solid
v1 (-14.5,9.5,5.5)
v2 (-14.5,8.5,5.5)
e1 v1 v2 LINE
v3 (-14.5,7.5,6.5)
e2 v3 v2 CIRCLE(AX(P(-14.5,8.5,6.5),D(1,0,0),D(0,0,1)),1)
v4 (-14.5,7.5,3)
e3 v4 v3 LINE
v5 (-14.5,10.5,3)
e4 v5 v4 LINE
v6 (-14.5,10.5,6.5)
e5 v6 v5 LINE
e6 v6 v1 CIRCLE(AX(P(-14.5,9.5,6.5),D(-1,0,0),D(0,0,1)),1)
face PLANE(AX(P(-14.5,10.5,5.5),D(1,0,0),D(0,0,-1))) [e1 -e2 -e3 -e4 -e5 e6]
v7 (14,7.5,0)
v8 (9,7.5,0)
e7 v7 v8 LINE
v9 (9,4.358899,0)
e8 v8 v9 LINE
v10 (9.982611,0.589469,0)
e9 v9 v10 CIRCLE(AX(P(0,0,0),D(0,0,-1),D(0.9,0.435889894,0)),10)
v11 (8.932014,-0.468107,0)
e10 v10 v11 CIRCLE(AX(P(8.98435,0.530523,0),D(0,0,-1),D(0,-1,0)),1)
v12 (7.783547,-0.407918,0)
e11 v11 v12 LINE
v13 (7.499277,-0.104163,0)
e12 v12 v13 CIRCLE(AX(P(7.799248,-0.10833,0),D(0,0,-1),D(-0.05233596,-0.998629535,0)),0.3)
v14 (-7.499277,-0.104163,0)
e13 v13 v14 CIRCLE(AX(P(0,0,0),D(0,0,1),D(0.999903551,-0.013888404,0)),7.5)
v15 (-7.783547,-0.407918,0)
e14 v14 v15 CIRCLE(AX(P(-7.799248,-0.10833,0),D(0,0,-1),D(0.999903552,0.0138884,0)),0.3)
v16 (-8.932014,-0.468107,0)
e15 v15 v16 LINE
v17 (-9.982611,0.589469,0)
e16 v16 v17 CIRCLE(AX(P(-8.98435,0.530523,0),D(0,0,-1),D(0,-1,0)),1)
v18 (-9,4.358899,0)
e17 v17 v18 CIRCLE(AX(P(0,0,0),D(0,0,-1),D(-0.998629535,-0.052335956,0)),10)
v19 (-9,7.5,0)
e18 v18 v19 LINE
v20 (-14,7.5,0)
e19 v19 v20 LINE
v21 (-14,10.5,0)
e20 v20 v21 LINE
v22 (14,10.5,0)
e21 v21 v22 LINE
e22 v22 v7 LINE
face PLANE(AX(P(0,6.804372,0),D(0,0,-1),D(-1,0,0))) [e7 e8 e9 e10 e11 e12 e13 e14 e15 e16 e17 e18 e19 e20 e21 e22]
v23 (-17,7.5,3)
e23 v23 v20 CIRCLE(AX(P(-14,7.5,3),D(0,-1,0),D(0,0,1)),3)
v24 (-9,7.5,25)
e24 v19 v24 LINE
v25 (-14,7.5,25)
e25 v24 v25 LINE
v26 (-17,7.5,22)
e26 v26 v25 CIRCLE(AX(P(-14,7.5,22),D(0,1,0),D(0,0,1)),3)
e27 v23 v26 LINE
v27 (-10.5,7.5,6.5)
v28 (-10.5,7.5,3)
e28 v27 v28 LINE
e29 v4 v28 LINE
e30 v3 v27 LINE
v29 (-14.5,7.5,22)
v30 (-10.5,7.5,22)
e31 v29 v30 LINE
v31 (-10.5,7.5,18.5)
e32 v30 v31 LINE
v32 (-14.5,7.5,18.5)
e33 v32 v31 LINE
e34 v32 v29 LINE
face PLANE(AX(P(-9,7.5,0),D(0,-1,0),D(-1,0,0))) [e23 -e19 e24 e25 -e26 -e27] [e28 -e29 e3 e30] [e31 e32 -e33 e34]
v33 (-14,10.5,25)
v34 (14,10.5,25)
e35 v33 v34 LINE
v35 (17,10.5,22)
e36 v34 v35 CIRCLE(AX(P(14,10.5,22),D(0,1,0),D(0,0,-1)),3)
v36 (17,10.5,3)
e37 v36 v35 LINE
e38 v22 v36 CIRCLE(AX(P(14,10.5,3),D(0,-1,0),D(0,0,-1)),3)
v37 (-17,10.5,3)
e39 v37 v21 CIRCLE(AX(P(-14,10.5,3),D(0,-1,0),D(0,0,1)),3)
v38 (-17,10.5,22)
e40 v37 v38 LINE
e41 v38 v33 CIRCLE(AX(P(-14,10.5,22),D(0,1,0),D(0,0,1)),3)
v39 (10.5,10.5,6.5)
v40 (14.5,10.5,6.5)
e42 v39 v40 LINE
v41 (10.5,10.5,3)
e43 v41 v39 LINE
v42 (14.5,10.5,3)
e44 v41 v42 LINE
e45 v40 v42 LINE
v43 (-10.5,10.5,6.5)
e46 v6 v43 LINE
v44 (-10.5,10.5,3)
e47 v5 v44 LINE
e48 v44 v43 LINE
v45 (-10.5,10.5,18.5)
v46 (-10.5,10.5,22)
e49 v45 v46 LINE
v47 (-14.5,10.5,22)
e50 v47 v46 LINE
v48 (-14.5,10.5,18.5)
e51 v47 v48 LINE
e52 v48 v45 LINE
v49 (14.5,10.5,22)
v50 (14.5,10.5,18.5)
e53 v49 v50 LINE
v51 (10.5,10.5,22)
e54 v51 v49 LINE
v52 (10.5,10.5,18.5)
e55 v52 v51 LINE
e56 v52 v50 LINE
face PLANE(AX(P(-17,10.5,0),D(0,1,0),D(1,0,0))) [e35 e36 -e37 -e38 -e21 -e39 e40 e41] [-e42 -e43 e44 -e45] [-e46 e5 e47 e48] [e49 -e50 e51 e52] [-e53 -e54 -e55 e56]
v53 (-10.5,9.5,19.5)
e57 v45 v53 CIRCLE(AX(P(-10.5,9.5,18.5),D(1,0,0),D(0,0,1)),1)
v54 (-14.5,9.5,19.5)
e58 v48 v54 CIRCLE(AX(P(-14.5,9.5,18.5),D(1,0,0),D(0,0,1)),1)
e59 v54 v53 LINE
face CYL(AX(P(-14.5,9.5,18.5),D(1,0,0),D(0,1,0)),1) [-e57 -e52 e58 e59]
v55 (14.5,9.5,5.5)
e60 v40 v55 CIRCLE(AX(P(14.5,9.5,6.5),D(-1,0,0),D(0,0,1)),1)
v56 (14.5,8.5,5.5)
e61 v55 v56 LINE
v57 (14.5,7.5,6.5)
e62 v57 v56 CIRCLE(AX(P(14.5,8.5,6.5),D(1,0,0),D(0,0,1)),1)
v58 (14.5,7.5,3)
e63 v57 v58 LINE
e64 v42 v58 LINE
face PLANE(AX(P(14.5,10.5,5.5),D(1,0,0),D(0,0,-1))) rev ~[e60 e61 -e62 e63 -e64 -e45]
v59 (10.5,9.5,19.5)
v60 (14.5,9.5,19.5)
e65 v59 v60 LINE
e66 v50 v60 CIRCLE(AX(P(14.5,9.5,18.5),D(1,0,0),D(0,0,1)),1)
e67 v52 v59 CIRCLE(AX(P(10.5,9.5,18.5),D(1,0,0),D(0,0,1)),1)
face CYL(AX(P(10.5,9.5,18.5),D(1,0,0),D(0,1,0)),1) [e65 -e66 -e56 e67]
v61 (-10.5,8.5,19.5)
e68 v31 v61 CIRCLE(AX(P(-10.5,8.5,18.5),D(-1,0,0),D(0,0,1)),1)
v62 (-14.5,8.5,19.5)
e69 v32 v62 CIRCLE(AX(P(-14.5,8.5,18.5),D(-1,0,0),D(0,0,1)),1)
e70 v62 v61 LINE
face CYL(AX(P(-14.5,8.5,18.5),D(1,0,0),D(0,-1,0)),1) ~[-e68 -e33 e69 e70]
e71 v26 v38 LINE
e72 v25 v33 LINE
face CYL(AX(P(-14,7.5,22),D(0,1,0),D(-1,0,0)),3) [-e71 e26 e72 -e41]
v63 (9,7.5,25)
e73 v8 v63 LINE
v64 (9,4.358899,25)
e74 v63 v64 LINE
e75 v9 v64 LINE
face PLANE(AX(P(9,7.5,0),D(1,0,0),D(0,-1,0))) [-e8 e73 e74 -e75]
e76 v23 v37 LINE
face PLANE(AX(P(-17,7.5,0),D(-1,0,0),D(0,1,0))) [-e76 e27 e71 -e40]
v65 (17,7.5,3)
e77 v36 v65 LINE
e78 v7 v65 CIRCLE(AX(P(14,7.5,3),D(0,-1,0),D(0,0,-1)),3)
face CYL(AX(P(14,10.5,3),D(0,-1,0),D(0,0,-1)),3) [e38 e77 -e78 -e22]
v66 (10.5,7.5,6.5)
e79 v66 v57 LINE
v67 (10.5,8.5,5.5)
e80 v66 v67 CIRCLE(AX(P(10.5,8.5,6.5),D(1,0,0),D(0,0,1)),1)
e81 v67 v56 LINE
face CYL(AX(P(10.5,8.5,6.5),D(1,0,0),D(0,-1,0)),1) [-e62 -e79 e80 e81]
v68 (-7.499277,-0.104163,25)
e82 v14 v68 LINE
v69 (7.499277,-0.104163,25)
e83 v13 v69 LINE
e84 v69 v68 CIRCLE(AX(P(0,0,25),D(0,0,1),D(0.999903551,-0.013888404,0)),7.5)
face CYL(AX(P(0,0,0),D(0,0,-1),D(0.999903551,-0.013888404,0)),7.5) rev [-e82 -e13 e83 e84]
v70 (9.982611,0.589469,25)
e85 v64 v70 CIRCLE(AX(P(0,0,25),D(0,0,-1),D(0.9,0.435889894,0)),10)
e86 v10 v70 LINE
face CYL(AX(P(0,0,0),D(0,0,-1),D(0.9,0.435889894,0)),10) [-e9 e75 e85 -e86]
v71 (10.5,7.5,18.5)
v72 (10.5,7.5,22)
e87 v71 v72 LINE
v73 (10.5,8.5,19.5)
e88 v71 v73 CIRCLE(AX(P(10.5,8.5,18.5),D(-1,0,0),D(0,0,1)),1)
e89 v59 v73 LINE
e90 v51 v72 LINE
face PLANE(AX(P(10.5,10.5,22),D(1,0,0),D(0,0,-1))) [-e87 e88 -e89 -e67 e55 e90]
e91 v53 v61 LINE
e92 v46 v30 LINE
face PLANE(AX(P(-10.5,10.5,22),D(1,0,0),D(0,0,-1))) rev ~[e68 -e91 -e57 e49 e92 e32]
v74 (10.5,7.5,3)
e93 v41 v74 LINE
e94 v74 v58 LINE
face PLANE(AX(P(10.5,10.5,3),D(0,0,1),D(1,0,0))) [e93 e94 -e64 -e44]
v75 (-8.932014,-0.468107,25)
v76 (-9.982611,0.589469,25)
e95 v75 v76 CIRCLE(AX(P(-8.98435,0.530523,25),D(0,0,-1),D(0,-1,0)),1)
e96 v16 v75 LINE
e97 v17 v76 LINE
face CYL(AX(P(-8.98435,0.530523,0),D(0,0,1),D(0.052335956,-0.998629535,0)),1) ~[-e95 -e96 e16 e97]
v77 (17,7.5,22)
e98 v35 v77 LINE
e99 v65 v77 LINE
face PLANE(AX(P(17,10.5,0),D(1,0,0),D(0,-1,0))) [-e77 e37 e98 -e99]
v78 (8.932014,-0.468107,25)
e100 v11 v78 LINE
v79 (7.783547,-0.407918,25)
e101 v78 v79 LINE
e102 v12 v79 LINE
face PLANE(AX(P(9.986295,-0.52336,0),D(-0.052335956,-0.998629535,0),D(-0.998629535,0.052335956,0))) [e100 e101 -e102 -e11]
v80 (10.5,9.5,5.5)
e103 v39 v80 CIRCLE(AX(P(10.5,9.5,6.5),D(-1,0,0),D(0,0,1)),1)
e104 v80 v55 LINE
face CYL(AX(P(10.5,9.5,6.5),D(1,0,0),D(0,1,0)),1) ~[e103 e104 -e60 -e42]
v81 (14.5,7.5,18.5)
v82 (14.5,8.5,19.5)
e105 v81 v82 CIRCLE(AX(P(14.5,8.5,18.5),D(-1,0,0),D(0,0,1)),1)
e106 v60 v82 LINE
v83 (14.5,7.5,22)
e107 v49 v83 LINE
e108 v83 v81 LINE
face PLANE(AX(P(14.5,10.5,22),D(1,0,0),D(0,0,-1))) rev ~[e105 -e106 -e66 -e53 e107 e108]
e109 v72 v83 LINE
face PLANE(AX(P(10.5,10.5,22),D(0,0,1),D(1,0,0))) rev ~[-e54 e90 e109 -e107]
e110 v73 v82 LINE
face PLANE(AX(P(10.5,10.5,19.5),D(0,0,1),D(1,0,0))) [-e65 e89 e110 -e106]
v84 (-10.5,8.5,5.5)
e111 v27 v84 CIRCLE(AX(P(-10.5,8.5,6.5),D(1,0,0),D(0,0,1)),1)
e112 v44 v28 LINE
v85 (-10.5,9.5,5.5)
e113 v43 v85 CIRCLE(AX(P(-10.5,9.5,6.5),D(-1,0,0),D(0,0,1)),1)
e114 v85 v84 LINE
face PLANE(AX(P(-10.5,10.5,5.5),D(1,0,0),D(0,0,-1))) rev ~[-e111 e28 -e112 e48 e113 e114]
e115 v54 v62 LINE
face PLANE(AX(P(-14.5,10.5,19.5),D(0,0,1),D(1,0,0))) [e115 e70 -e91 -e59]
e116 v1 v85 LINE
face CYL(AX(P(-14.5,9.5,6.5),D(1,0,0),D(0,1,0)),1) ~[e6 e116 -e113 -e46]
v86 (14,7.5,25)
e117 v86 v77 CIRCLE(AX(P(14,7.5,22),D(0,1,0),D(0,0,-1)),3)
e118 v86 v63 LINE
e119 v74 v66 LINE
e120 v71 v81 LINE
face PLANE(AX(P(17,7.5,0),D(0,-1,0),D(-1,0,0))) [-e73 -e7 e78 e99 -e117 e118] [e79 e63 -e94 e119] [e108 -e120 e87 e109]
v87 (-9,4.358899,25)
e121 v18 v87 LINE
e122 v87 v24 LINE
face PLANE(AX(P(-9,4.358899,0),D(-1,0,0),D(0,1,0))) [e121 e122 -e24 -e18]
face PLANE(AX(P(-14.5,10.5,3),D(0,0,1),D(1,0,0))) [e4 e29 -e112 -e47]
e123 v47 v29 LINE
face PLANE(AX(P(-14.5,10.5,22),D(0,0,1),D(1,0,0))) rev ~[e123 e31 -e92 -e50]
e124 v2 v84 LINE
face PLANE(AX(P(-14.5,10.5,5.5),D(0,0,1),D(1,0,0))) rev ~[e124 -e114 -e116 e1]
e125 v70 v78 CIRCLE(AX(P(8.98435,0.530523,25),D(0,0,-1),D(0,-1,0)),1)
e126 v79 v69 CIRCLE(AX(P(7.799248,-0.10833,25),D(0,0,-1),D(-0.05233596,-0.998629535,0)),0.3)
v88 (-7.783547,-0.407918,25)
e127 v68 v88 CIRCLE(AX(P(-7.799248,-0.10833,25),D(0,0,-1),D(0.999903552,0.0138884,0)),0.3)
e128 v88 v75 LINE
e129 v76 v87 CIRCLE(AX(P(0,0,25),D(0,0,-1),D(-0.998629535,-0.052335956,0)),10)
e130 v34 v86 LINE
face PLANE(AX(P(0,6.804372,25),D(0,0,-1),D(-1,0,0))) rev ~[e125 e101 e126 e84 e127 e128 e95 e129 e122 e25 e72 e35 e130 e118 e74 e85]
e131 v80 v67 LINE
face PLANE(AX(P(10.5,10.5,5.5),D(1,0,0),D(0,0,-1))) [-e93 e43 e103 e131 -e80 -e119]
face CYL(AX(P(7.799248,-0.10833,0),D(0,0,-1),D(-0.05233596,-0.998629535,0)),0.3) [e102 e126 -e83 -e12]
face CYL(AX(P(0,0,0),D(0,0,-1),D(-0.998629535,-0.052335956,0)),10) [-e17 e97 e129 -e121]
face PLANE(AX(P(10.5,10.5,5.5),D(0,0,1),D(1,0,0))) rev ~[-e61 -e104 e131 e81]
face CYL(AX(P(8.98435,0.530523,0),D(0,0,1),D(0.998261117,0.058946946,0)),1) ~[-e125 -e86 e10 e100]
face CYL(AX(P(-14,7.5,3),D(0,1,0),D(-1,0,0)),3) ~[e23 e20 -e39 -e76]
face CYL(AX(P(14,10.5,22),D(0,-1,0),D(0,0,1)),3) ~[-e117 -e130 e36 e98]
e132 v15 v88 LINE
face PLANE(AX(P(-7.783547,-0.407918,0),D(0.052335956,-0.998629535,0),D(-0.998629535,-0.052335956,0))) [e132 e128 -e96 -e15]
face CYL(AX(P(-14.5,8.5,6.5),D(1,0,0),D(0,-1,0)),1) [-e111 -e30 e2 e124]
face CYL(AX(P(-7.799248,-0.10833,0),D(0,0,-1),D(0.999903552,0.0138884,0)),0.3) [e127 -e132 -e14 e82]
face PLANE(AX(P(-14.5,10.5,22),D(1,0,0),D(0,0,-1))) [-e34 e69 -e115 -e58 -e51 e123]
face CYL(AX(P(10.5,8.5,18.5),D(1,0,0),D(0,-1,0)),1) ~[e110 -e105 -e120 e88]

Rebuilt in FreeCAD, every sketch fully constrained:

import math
import FreeCAD as App
import Part
import Sketcher

V = App.Vector
Q = App.Units.Quantity


def edges_at(feature, points):
    """Names of the edges that pass closest to the given points."""
    edges = feature.Shape.Edges
    near = lambda p: min(range(len(edges)), key=lambda i: edges[i].distToShape(Part.Vertex(*p))[0])
    return sorted({f"Edge{near(p) + 1}" for p in points})


def add_polygon(sketch, points):
    """Adds a closed chain of lines whose ends are joined by coincident constraints."""
    first, n = sketch.GeometryCount, len(points)
    for a, b in zip(points, points[1:] + points[:1]):
        sketch.addGeometry(Part.LineSegment(App.Vector(*a, 0), App.Vector(*b, 0)), False)
    for i in range(n):
        sketch.addConstraint(Sketcher.Constraint("Coincident", first + i, 2, first + (i + 1) % n, 1))

doc = App.newDocument("Part")
body = doc.addObject("PartDesign::Body", "Body")

sketch1 = body.newObject("Sketcher::SketchObject", "Sketch")
sketch1.AttachmentSupport = (doc.getObject("XY_Plane"), [""])
sketch1.MapMode = "FlatFace"
sketch1.addGeometry(Part.LineSegment(V(17, 10.5, 0), V(-17, 10.5, 0)), False)
sketch1.addGeometry(Part.LineSegment(V(-17, 10.5, 0), V(-17, 7.5, 0)), False)
sketch1.addGeometry(Part.LineSegment(V(-17, 7.5, 0), V(-9, 7.5, 0)), False)
sketch1.addGeometry(Part.LineSegment(V(-9, 7.5, 0), V(-9, 4.358899, 0)), False)
sketch1.addGeometry(Part.ArcOfCircle(Part.Circle(V(0, 0, 0), V(0, 0, 1), 10), math.radians(154.158067), math.radians(183)), False)
sketch1.addGeometry(Part.LineSegment(V(-9.986295, -0.52336, 0), V(-7.783547, -0.407918, 0)), False)
sketch1.addGeometry(Part.ArcOfCircle(Part.Circle(V(-7.799248, -0.10833, 0), V(0, 0, 1), 0.3), math.radians(-87), math.radians(0.795772)), False)
sketch1.addGeometry(Part.ArcOfCircle(Part.Circle(V(0, 0, 0), V(0, 0, 1), 7.5), math.radians(-0.795772), math.radians(180.795772)), False)
sketch1.addGeometry(Part.ArcOfCircle(Part.Circle(V(7.799248, -0.10833, 0), V(0, 0, 1), 0.3), math.radians(179.204228), math.radians(267)), False)
sketch1.addGeometry(Part.LineSegment(V(7.783547, -0.407918, 0), V(9.986295, -0.52336, 0)), False)
sketch1.addGeometry(Part.ArcOfCircle(Part.Circle(V(0, 0, 0), V(0, 0, 1), 10), math.radians(-3), math.radians(25.841933)), False)
sketch1.addGeometry(Part.LineSegment(V(9, 4.358899, 0), V(9, 7.5, 0)), False)
sketch1.addGeometry(Part.LineSegment(V(9, 7.5, 0), V(17, 7.5, 0)), False)
sketch1.addGeometry(Part.LineSegment(V(17, 7.5, 0), V(17, 10.5, 0)), False)
sketch1.addConstraint(Sketcher.Constraint("Coincident", 0, 2, 1, 1))
sketch1.addConstraint(Sketcher.Constraint("Coincident", 1, 2, 2, 1))
sketch1.addConstraint(Sketcher.Constraint("Coincident", 2, 2, 3, 1))
sketch1.addConstraint(Sketcher.Constraint("Coincident", 3, 2, 4, 1))
sketch1.addConstraint(Sketcher.Constraint("Coincident", 4, 2, 5, 1))
sketch1.addConstraint(Sketcher.Constraint("Tangent", 5, 2, 6, 1))
sketch1.addConstraint(Sketcher.Constraint("Tangent", 6, 2, 7, 2))
sketch1.addConstraint(Sketcher.Constraint("Tangent", 7, 1, 8, 1))
sketch1.addConstraint(Sketcher.Constraint("Tangent", 8, 2, 9, 1))
sketch1.addConstraint(Sketcher.Constraint("Coincident", 9, 2, 10, 1))
sketch1.addConstraint(Sketcher.Constraint("Coincident", 10, 2, 11, 1))
sketch1.addConstraint(Sketcher.Constraint("Coincident", 11, 2, 12, 1))
sketch1.addConstraint(Sketcher.Constraint("Coincident", 12, 2, 13, 1))
sketch1.addConstraint(Sketcher.Constraint("Coincident", 13, 2, 0, 1))
sketch1.addConstraint(Sketcher.Constraint("Horizontal", 0))
sketch1.addConstraint(Sketcher.Constraint("Vertical", 1))
sketch1.addConstraint(Sketcher.Constraint("Horizontal", 2))
sketch1.addConstraint(Sketcher.Constraint("Vertical", 3))
sketch1.addConstraint(Sketcher.Constraint("Vertical", 11))
sketch1.addConstraint(Sketcher.Constraint("Horizontal", 12))
sketch1.addConstraint(Sketcher.Constraint("Vertical", 13))
sketch1.addConstraint(Sketcher.Constraint("Coincident", 4, 3, -1, 1))
sketch1.addConstraint(Sketcher.Constraint("Coincident", 7, 3, -1, 1))
sketch1.addConstraint(Sketcher.Constraint("Coincident", 10, 3, -1, 1))
sketch1.addConstraint(Sketcher.Constraint("Equal", 6, 8))
sketch1.addConstraint(Sketcher.Constraint("Equal", 4, 10))
sketch1.addConstraint(Sketcher.Constraint("Symmetric", 5, 2, 8, 2, -2))
sketch1.addConstraint(Sketcher.Constraint("Symmetric", 2, 2, 11, 2, -2))
sketch1.addConstraint(Sketcher.Constraint("Equal", 2, 12))
sketch1.addConstraint(Sketcher.Constraint("Radius", 4, 10.0))
sketch1.addConstraint(Sketcher.Constraint("Radius", 6, 0.3))
sketch1.addConstraint(Sketcher.Constraint("Radius", 7, 7.5))
sketch1.addConstraint(Sketcher.Constraint("DistanceX", 0, 2, 0, 1, 34.0))
sketch1.addConstraint(Sketcher.Constraint("DistanceX", 2, 1, 2, 2, 8.0))
sketch1.addConstraint(Sketcher.Constraint("DistanceY", 1, 2, 1, 1, 3.0))
sketch1.addConstraint(Sketcher.Constraint("Angle", 5, Q("3 deg")))
sketch1.addConstraint(Sketcher.Constraint("DistanceY", -1, 1, 0, 2, 10.5))
sketch1.addConstraint(Sketcher.Constraint("Distance", 5, 2.205771))
pad1 = body.newObject("PartDesign::Pad", "Pad")
pad1.Profile = sketch1
pad1.Length = 25
doc.recompute()

fillet = body.newObject("PartDesign::Fillet", "Fillet")
fillet.Base = (pad1, edges_at(pad1, [(-9.986, -0.523, 12.5), (9.986, -0.523, 12.5)]))
fillet.Radius = 1

sketch2 = body.newObject("Sketcher::SketchObject", "Sketch001")
sketch2.AttachmentSupport = (doc.getObject("XZ_Plane"), [""])
sketch2.MapMode = "FlatFace"
sketch2.AttachmentOffset = App.Placement(V(0, 0, -10.5), App.Rotation())
add_polygon(sketch2, [(-14.5, 3), (-14.5, 5.5), (-10.5, 5.5), (-10.5, 3)])
sketch2.addConstraint(Sketcher.Constraint("Vertical", 0))
sketch2.addConstraint(Sketcher.Constraint("Horizontal", 1))
sketch2.addConstraint(Sketcher.Constraint("Vertical", 2))
sketch2.addConstraint(Sketcher.Constraint("Horizontal", 3))
sketch2.addConstraint(Sketcher.Constraint("DistanceX", 1, 1, 1, 2, 4.0))
sketch2.addConstraint(Sketcher.Constraint("DistanceY", 0, 1, 0, 2, 2.5))
sketch2.addConstraint(Sketcher.Constraint("DistanceY", -1, 1, 2, 2, 3.0))
sketch2.addConstraint(Sketcher.Constraint("DistanceX", 0, 2, -1, 1, 14.5))
pocket1 = body.newObject("PartDesign::Pocket", "Pocket")
pocket1.Profile = sketch2
pocket1.Type = "UpToFirst"
pocket1.Reversed = True

sketch3 = body.newObject("Sketcher::SketchObject", "Sketch002")
sketch3.AttachmentSupport = (doc.getObject("XZ_Plane"), [""])
sketch3.MapMode = "FlatFace"
sketch3.AttachmentOffset = App.Placement(V(0, 0, -10.5), App.Rotation())
add_polygon(sketch3, [(-14.5, 19.5), (-14.5, 22), (-10.5, 22), (-10.5, 19.5)])
sketch3.addConstraint(Sketcher.Constraint("Vertical", 0))
sketch3.addConstraint(Sketcher.Constraint("Horizontal", 1))
sketch3.addConstraint(Sketcher.Constraint("Vertical", 2))
sketch3.addConstraint(Sketcher.Constraint("Horizontal", 3))
sketch3.addConstraint(Sketcher.Constraint("DistanceX", 1, 1, 1, 2, 4.0))
sketch3.addConstraint(Sketcher.Constraint("DistanceY", 0, 1, 0, 2, 2.5))
sketch3.addConstraint(Sketcher.Constraint("DistanceY", -1, 1, 0, 2, 22.0))
sketch3.addConstraint(Sketcher.Constraint("DistanceX", 0, 2, -1, 1, 14.5))
pocket2 = body.newObject("PartDesign::Pocket", "Pocket001")
pocket2.Profile = sketch3
pocket2.Type = "UpToFirst"
pocket2.Reversed = True

sketch4 = body.newObject("Sketcher::SketchObject", "Sketch003")
sketch4.AttachmentSupport = (doc.getObject("XZ_Plane"), [""])
sketch4.MapMode = "FlatFace"
sketch4.AttachmentOffset = App.Placement(V(0, 0, -10.5), App.Rotation())
add_polygon(sketch4, [(10.5, 19.5), (10.5, 22), (14.5, 22), (14.5, 19.5)])
sketch4.addConstraint(Sketcher.Constraint("Vertical", 0))
sketch4.addConstraint(Sketcher.Constraint("Horizontal", 1))
sketch4.addConstraint(Sketcher.Constraint("Vertical", 2))
sketch4.addConstraint(Sketcher.Constraint("Horizontal", 3))
sketch4.addConstraint(Sketcher.Constraint("DistanceX", 1, 1, 1, 2, 4.0))
sketch4.addConstraint(Sketcher.Constraint("DistanceY", 0, 1, 0, 2, 2.5))
sketch4.addConstraint(Sketcher.Constraint("DistanceY", -1, 1, 0, 2, 22.0))
sketch4.addConstraint(Sketcher.Constraint("DistanceX", -1, 1, 0, 2, 10.5))
pocket3 = body.newObject("PartDesign::Pocket", "Pocket002")
pocket3.Profile = sketch4
pocket3.Type = "UpToFirst"
pocket3.Reversed = True

sketch5 = body.newObject("Sketcher::SketchObject", "Sketch004")
sketch5.AttachmentSupport = (doc.getObject("XZ_Plane"), [""])
sketch5.MapMode = "FlatFace"
sketch5.AttachmentOffset = App.Placement(V(0, 0, -10.5), App.Rotation())
add_polygon(sketch5, [(10.5, 3), (10.5, 5.5), (14.5, 5.5), (14.5, 3)])
sketch5.addConstraint(Sketcher.Constraint("Vertical", 0))
sketch5.addConstraint(Sketcher.Constraint("Horizontal", 1))
sketch5.addConstraint(Sketcher.Constraint("Vertical", 2))
sketch5.addConstraint(Sketcher.Constraint("Horizontal", 3))
sketch5.addConstraint(Sketcher.Constraint("DistanceX", 1, 1, 1, 2, 4.0))
sketch5.addConstraint(Sketcher.Constraint("DistanceY", 0, 1, 0, 2, 2.5))
sketch5.addConstraint(Sketcher.Constraint("DistanceY", -1, 1, 2, 2, 3.0))
sketch5.addConstraint(Sketcher.Constraint("DistanceX", -1, 1, 0, 2, 10.5))
pocket4 = body.newObject("PartDesign::Pocket", "Pocket003")
pocket4.Profile = sketch5
pocket4.Type = "UpToFirst"
pocket4.Reversed = True
doc.recompute()

fillet2 = body.newObject("PartDesign::Fillet", "Fillet001")
fillet2.Base = (pocket4, edges_at(pocket4, [
    (12.5, 10.5, 5.5),
    (12.5, 7.5, 5.5),
    (12.5, 10.5, 19.5),
    (12.5, 7.5, 19.5),
    (-12.5, 10.5, 19.5),
    (-12.5, 7.5, 19.5),
    (-12.5, 10.5, 5.5),
    (-12.5, 7.5, 5.5),
]))
fillet2.Radius = 1
doc.recompute()

fillet3 = body.newObject("PartDesign::Fillet", "Fillet002")
fillet3.Base = (fillet2, edges_at(fillet2, [
    (-17, 9, 0),
    (17, 9, 0),
    (17, 9, 25),
    (-17, 9, 25),
]))
fillet3.Radius = 3

doc.recompute()
